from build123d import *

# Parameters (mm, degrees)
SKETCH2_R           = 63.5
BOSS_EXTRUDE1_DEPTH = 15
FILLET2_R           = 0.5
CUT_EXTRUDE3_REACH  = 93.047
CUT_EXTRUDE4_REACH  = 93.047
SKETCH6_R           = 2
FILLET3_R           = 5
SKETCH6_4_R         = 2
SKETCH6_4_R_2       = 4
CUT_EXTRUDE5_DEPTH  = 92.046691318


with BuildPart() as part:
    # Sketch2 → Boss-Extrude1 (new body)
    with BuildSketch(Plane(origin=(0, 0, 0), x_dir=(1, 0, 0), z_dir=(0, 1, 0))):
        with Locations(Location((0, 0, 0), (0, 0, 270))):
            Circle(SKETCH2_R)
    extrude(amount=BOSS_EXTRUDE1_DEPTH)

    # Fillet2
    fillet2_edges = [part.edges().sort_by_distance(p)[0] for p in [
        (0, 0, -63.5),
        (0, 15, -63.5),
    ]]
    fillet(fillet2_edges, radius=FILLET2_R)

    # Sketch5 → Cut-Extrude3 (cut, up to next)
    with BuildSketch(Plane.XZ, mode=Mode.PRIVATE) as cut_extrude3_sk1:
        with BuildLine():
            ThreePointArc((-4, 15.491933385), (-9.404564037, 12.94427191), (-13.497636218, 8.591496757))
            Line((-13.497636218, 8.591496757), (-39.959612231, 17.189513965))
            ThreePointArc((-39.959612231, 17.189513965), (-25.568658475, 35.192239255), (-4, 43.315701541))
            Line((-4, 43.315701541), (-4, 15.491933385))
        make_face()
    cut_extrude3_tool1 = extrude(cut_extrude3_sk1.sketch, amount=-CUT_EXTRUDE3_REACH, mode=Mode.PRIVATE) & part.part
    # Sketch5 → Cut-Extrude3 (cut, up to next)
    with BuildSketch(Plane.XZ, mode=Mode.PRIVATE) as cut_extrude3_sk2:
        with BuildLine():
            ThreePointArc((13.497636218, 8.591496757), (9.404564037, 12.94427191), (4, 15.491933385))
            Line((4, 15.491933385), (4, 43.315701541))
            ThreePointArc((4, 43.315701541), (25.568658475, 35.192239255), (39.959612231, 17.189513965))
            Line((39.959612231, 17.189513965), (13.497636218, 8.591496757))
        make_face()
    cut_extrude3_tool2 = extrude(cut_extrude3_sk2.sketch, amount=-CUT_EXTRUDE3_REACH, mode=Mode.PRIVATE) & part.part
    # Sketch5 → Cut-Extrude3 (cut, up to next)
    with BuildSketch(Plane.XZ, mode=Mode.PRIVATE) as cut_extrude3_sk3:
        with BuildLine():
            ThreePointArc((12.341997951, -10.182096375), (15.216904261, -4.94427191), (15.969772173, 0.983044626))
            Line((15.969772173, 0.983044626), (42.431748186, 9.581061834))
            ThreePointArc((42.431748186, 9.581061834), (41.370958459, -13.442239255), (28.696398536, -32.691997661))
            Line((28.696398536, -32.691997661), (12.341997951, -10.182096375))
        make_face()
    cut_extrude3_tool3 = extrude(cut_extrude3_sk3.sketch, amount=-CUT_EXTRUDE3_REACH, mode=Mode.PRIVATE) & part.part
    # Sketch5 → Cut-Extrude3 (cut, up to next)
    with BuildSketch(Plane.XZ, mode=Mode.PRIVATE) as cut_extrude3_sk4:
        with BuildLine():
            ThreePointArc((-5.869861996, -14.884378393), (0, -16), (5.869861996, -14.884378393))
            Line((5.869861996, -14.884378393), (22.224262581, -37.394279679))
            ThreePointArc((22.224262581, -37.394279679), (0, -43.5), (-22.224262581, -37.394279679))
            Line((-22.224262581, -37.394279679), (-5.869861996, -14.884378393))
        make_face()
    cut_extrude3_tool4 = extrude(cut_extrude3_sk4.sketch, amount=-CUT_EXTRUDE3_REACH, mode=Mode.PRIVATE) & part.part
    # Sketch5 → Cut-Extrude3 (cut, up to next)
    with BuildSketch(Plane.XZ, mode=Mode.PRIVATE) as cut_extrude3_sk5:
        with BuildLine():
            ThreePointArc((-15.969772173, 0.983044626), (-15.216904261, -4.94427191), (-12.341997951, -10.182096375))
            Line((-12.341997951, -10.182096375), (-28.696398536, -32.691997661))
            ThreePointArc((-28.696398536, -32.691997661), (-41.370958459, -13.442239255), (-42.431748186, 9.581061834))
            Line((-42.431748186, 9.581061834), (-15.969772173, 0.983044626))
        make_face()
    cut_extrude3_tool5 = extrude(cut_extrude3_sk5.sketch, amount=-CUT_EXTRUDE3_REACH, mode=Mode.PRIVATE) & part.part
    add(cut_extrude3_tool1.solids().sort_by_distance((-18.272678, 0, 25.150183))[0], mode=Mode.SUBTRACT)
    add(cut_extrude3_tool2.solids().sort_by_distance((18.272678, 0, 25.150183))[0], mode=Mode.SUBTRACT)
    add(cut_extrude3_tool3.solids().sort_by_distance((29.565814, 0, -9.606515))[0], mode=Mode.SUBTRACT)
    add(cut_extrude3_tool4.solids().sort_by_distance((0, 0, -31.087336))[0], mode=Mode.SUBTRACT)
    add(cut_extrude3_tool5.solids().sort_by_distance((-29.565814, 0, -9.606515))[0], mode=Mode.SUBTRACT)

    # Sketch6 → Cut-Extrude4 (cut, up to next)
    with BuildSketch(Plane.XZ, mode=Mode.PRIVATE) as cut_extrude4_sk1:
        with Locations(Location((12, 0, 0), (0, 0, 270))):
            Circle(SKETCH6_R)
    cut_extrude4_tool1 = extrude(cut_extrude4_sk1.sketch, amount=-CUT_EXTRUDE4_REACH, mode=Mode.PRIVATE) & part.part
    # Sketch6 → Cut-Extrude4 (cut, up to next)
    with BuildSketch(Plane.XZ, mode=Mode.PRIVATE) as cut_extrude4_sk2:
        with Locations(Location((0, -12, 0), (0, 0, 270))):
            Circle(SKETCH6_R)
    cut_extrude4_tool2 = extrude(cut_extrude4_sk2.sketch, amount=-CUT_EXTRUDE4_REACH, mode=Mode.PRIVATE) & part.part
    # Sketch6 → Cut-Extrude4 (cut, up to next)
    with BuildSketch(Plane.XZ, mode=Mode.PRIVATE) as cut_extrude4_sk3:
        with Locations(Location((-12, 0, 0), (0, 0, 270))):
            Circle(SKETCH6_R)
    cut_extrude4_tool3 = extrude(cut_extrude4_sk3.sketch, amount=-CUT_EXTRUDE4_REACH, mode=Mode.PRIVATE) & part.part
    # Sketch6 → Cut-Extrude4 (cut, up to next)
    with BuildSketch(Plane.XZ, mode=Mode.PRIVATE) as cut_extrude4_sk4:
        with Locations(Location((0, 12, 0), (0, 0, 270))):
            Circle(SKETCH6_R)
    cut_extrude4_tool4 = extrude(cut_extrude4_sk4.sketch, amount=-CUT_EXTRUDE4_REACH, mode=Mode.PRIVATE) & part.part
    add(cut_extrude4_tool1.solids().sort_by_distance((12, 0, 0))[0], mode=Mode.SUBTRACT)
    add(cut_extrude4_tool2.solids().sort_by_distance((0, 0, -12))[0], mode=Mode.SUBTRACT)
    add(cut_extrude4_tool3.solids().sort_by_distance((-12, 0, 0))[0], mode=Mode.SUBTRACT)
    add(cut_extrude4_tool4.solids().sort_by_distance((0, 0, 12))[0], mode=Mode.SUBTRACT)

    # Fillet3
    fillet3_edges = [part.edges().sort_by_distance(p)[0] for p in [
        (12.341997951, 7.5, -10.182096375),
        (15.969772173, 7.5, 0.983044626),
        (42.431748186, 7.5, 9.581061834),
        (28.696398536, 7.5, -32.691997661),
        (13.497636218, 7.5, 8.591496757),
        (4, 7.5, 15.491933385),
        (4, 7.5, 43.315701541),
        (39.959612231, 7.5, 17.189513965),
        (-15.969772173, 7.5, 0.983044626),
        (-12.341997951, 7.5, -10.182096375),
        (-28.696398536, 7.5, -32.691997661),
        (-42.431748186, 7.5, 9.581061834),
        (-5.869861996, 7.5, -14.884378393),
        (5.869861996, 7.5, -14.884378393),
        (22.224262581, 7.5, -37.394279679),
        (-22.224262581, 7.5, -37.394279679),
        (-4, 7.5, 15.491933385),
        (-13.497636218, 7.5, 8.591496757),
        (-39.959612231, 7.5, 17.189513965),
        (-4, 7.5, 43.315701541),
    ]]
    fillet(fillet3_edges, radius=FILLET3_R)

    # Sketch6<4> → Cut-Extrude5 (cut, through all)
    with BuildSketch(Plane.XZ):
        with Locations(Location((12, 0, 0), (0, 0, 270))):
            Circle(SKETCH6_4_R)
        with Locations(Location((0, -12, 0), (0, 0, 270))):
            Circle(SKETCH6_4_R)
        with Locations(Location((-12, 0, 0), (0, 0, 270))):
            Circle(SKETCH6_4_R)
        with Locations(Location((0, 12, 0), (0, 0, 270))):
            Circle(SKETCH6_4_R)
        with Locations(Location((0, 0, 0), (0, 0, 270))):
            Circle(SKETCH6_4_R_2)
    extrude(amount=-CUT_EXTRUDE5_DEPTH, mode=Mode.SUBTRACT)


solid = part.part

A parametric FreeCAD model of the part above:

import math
import FreeCAD as App
import Part
import Sketcher
from FreeCAD import Vector
Q = App.Units.Quantity


def edges_at(feature, points):
    """Names of the edges that pass closest to the given points."""
    edges = feature.Shape.Edges
    near = lambda p: min(range(len(edges)), key=lambda i: edges[i].distToShape(Part.Vertex(*p))[0])
    return sorted({f"Edge{near(p) + 1}" for p in points})

doc = App.newDocument("Part")
body = doc.addObject("PartDesign::Body", "Body")

# Sketch on XZ plane
sketch1 = body.newObject("Sketcher::SketchObject", "Sketch")
sketch1.AttachmentSupport = (doc.getObject("XZ_Plane"), [""])
sketch1.MapMode = "FlatFace"
sketch1.addGeometry(Part.Circle(Vector(0, 0, 0), Vector(0, 0, 1), 63.5), False)
sketch1.addConstraint(Sketcher.Constraint("Coincident", 0, 3, -1, 1))
sketch1.addConstraint(Sketcher.Constraint("Diameter", 0, 127.0))
pad1 = body.newObject("PartDesign::Pad", "Pad")
pad1.Profile = sketch1
pad1.Length = 15
pad1.Reversed = True
doc.recompute()

fillet = body.newObject("PartDesign::Fillet", "Fillet")
fillet.Base = (pad1, edges_at(pad1, [(0, 0, -63.5), (0, 15, -63.5)]))
fillet.Radius = 0.5

# Sketch on XZ plane
sketch2 = body.newObject("Sketcher::SketchObject", "Sketch001")
sketch2.AttachmentSupport = (doc.getObject("XZ_Plane"), [""])
sketch2.MapMode = "FlatFace"
sketch2.addGeometry(Part.ArcOfCircle(Part.Circle(Vector(0, 0, 0), Vector(0, 0, 1), 16), math.radians(104.477512), math.radians(147.522488)), False)
sketch2.addGeometry(Part.LineSegment(Vector(-4, 15.491933, 0), Vector(-4, 43.315702, 0)), False)
sketch2.addGeometry(Part.ArcOfCircle(Part.Circle(Vector(0, 0, 0), Vector(0, 0, 1), 43.5), math.radians(95.276031), math.radians(156.723969)), False)
sketch2.addGeometry(Part.LineSegment(Vector(-39.959612, 17.189514, 0), Vector(-13.497636, 8.591497, 0)), False)
sketch2.addConstraint(Sketcher.Constraint("Coincident", 0, 1, 1, 1))
sketch2.addConstraint(Sketcher.Constraint("Coincident", 1, 2, 2, 1))
sketch2.addConstraint(Sketcher.Constraint("Coincident", 2, 2, 3, 1))
sketch2.addConstraint(Sketcher.Constraint("Coincident", 3, 2, 0, 2))
sketch2.addConstraint(Sketcher.Constraint("Vertical", 1))
sketch2.addConstraint(Sketcher.Constraint("Coincident", 0, 3, -1, 1))
sketch2.addConstraint(Sketcher.Constraint("Coincident", 2, 3, -1, 1))
sketch2.addConstraint(Sketcher.Constraint("Radius", 0, 16.0))
sketch2.addConstraint(Sketcher.Constraint("Radius", 2, 43.5))
sketch2.addConstraint(Sketcher.Constraint("Angle", 3, Q("-18 deg")))
sketch2.addConstraint(Sketcher.Constraint("DistanceX", 0, 1, -1, 1, 4.0))
sketch2.addConstraint(Sketcher.Constraint("Distance", 3, 27.823768))
pocket1 = body.newObject("PartDesign::Pocket", "Pocket")
pocket1.Profile = sketch2
pocket1.Type = "UpToFirst"

# Sketch on XZ plane
sketch3 = body.newObject("Sketcher::SketchObject", "Sketch002")
sketch3.AttachmentSupport = (doc.getObject("XZ_Plane"), [""])
sketch3.MapMode = "FlatFace"
sketch3.addGeometry(Part.ArcOfCircle(Part.Circle(Vector(0, 0, 0), Vector(0, 0, 1), 16), math.radians(32.477512), math.radians(75.522488)), False)
sketch3.addGeometry(Part.LineSegment(Vector(13.497636, 8.591497, 0), Vector(39.959612, 17.189514, 0)), False)
sketch3.addGeometry(Part.ArcOfCircle(Part.Circle(Vector(0, 0, 0), Vector(0, 0, 1), 43.5), math.radians(23.276031), math.radians(84.723969)), False)
sketch3.addGeometry(Part.LineSegment(Vector(4, 43.315702, 0), Vector(4, 15.491933, 0)), False)
sketch3.addConstraint(Sketcher.Constraint("Coincident", 0, 1, 1, 1))
sketch3.addConstraint(Sketcher.Constraint("Coincident", 1, 2, 2, 1))
sketch3.addConstraint(Sketcher.Constraint("Coincident", 2, 2, 3, 1))
sketch3.addConstraint(Sketcher.Constraint("Coincident", 3, 2, 0, 2))
sketch3.addConstraint(Sketcher.Constraint("Vertical", 3))
sketch3.addConstraint(Sketcher.Constraint("Coincident", 0, 3, -1, 1))
sketch3.addConstraint(Sketcher.Constraint("Coincident", 2, 3, -1, 1))
sketch3.addConstraint(Sketcher.Constraint("Radius", 0, 16.0))
sketch3.addConstraint(Sketcher.Constraint("Radius", 2, 43.5))
sketch3.addConstraint(Sketcher.Constraint("Angle", 1, Q("18 deg")))
sketch3.addConstraint(Sketcher.Constraint("DistanceX", -1, 1, 2, 2, 4.0))
sketch3.addConstraint(Sketcher.Constraint("Distance", 1, 27.823768))
pocket2 = body.newObject("PartDesign::Pocket", "Pocket001")
pocket2.Profile = sketch3
pocket2.Type = "UpToFirst"

# Sketch on XZ plane
sketch4 = body.newObject("Sketcher::SketchObject", "Sketch003")
sketch4.AttachmentSupport = (doc.getObject("XZ_Plane"), [""])
sketch4.MapMode = "FlatFace"
sketch4.addGeometry(Part.ArcOfCircle(Part.Circle(Vector(0, 0, 0), Vector(0, 0, 1), 16), math.radians(-39.522488), math.radians(3.522488)), False)
sketch4.addGeometry(Part.LineSegment(Vector(12.341998, -10.182096, 0), Vector(28.696399, -32.691998, 0)), False)
sketch4.addGeometry(Part.ArcOfCircle(Part.Circle(Vector(0, 0, 0), Vector(0, 0, 1), 43.5), math.radians(-48.723969), math.radians(12.723969)), False)
sketch4.addGeometry(Part.LineSegment(Vector(42.431748, 9.581062, 0), Vector(15.969772, 0.983045, 0)), False)
sketch4.addConstraint(Sketcher.Constraint("Coincident", 0, 1, 1, 1))
sketch4.addConstraint(Sketcher.Constraint("Coincident", 1, 2, 2, 1))
sketch4.addConstraint(Sketcher.Constraint("Coincident", 2, 2, 3, 1))
sketch4.addConstraint(Sketcher.Constraint("Coincident", 3, 2, 0, 2))
sketch4.addConstraint(Sketcher.Constraint("Coincident", 0, 3, -1, 1))
sketch4.addConstraint(Sketcher.Constraint("Coincident", 2, 3, -1, 1))
sketch4.addConstraint(Sketcher.Constraint("Equal", 1, 3))
sketch4.addConstraint(Sketcher.Constraint("Radius", 0, 16.0))
sketch4.addConstraint(Sketcher.Constraint("Radius", 2, 43.5))
sketch4.addConstraint(Sketcher.Constraint("Angle", 1, Q("-54 deg")))
sketch4.addConstraint(Sketcher.Constraint("Angle", 3, Q("-162 deg")))
sketch4.addConstraint(Sketcher.Constraint("DistanceX", -1, 1, 1, 2, 28.696399))
pocket3 = body.newObject("PartDesign::Pocket", "Pocket002")
pocket3.Profile = sketch4
pocket3.Type = "UpToFirst"

# Sketch on XZ plane
sketch5 = body.newObject("Sketcher::SketchObject", "Sketch004")
sketch5.AttachmentSupport = (doc.getObject("XZ_Plane"), [""])
sketch5.MapMode = "FlatFace"
sketch5.addGeometry(Part.ArcOfCircle(Part.Circle(Vector(0, 0, 0), Vector(0, 0, 1), 16), math.radians(-111.522488), math.radians(-68.477512)), False)
sketch5.addGeometry(Part.LineSegment(Vector(-5.869862, -14.884378, 0), Vector(-22.224263, -37.39428, 0)), False)
sketch5.addGeometry(Part.ArcOfCircle(Part.Circle(Vector(0, 0, 0), Vector(0, 0, 1), 43.5), math.radians(-120.723969), math.radians(-59.276031)), False)
sketch5.addGeometry(Part.LineSegment(Vector(22.224263, -37.39428, 0), Vector(5.869862, -14.884378, 0)), False)
sketch5.addConstraint(Sketcher.Constraint("Coincident", 0, 1, 1, 1))
sketch5.addConstraint(Sketcher.Constraint("Coincident", 1, 2, 2, 1))
sketch5.addConstraint(Sketcher.Constraint("Coincident", 2, 2, 3, 1))
sketch5.addConstraint(Sketcher.Constraint("Coincident", 3, 2, 0, 2))
sketch5.addConstraint(Sketcher.Constraint("Coincident", 0, 3, -1, 1))
sketch5.addConstraint(Sketcher.Constraint("Coincident", 2, 3, -1, 1))
sketch5.addConstraint(Sketcher.Constraint("Horizontal", 1, 2, 2, 2))
sketch5.addConstraint(Sketcher.Constraint("Horizontal", 0, 1, 3, 2))
sketch5.addConstraint(Sketcher.Constraint("Radius", 0, 16.0))
sketch5.addConstraint(Sketcher.Constraint("Radius", 2, 43.5))
sketch5.addConstraint(Sketcher.Constraint("Angle", 1, Q("-126 deg")))
sketch5.addConstraint(Sketcher.Constraint("DistanceX", 1, 2, 0, 1, 16.354401))
pocket4 = body.newObject("PartDesign::Pocket", "Pocket003")
pocket4.Profile = sketch5
pocket4.Type = "UpToFirst"

# Sketch on XZ plane
sketch6 = body.newObject("Sketcher::SketchObject", "Sketch005")
sketch6.AttachmentSupport = (doc.getObject("XZ_Plane"), [""])
sketch6.MapMode = "FlatFace"
sketch6.addGeometry(Part.ArcOfCircle(Part.Circle(Vector(0, 0, 0), Vector(0, 0, 1), 16), math.radians(176.477512), math.radians(219.522488)), False)
sketch6.addGeometry(Part.LineSegment(Vector(-15.969772, 0.983045, 0), Vector(-42.431748, 9.581062, 0)), False)
sketch6.addGeometry(Part.ArcOfCircle(Part.Circle(Vector(0, 0, 0), Vector(0, 0, 1), 43.5), math.radians(167.276031), math.radians(228.723969)), False)
sketch6.addGeometry(Part.LineSegment(Vector(-28.696399, -32.691998, 0), Vector(-12.341998, -10.182096, 0)), False)
sketch6.addConstraint(Sketcher.Constraint("Coincident", 0, 1, 1, 1))
sketch6.addConstraint(Sketcher.Constraint("Coincident", 1, 2, 2, 1))
sketch6.addConstraint(Sketcher.Constraint("Coincident", 2, 2, 3, 1))
sketch6.addConstraint(Sketcher.Constraint("Coincident", 3, 2, 0, 2))
sketch6.addConstraint(Sketcher.Constraint("Coincident", 0, 3, -1, 1))
sketch6.addConstraint(Sketcher.Constraint("Coincident", 2, 3, -1, 1))
sketch6.addConstraint(Sketcher.Constraint("Equal", 1, 3))
sketch6.addConstraint(Sketcher.Constraint("Radius", 0, 16.0))
sketch6.addConstraint(Sketcher.Constraint("Radius", 2, 43.5))
sketch6.addConstraint(Sketcher.Constraint("Angle", 1, Q("162 deg")))
sketch6.addConstraint(Sketcher.Constraint("Angle", 3, Q("54 deg")))
sketch6.addConstraint(Sketcher.Constraint("DistanceX", 2, 2, -1, 1, 28.696399))
pocket5 = body.newObject("PartDesign::Pocket", "Pocket004")
pocket5.Profile = sketch6
pocket5.Type = "UpToFirst"

# Sketch on XZ plane
sketch7 = body.newObject("Sketcher::SketchObject", "Sketch006")
sketch7.AttachmentSupport = (doc.getObject("XZ_Plane"), [""])
sketch7.MapMode = "FlatFace"
sketch7.addGeometry(Part.Circle(Vector(12, 0, 0), Vector(0, 0, 1), 2), False)
sketch7.addConstraint(Sketcher.Constraint("PointOnObject", 0, 3, -1))
sketch7.addConstraint(Sketcher.Constraint("Diameter", 0, 4.0))
sketch7.addConstraint(Sketcher.Constraint("DistanceX", -1, 1, 0, 3, 12.0))
pocket6 = body.newObject("PartDesign::Pocket", "Pocket005")
pocket6.Profile = sketch7
pocket6.Type = "UpToFirst"

# Sketch on XZ plane
sketch8 = body.newObject("Sketcher::SketchObject", "Sketch007")
sketch8.AttachmentSupport = (doc.getObject("XZ_Plane"), [""])
sketch8.MapMode = "FlatFace"
sketch8.addGeometry(Part.Circle(Vector(0, -12, 0), Vector(0, 0, 1), 2), False)
sketch8.addConstraint(Sketcher.Constraint("PointOnObject", 0, 3, -2))
sketch8.addConstraint(Sketcher.Constraint("Diameter", 0, 4.0))
sketch8.addConstraint(Sketcher.Constraint("DistanceY", 0, 3, -1, 1, 12.0))
pocket7 = body.newObject("PartDesign::Pocket", "Pocket006")
pocket7.Profile = sketch8
pocket7.Type = "UpToFirst"

# Sketch on XZ plane
sketch9 = body.newObject("Sketcher::SketchObject", "Sketch008")
sketch9.AttachmentSupport = (doc.getObject("XZ_Plane"), [""])
sketch9.MapMode = "FlatFace"
sketch9.addGeometry(Part.Circle(Vector(-12, 0, 0), Vector(0, 0, 1), 2), False)
sketch9.addConstraint(Sketcher.Constraint("PointOnObject", 0, 3, -1))
sketch9.addConstraint(Sketcher.Constraint("Diameter", 0, 4.0))
sketch9.addConstraint(Sketcher.Constraint("DistanceX", 0, 3, -1, 1, 12.0))
pocket8 = body.newObject("PartDesign::Pocket", "Pocket007")
pocket8.Profile = sketch9
pocket8.Type = "UpToFirst"

# Sketch on XZ plane
sketch10 = body.newObject("Sketcher::SketchObject", "Sketch009")
sketch10.AttachmentSupport = (doc.getObject("XZ_Plane"), [""])
sketch10.MapMode = "FlatFace"
sketch10.addGeometry(Part.Circle(Vector(0, 12, 0), Vector(0, 0, 1), 2), False)
sketch10.addConstraint(Sketcher.Constraint("PointOnObject", 0, 3, -2))
sketch10.addConstraint(Sketcher.Constraint("Diameter", 0, 4.0))
sketch10.addConstraint(Sketcher.Constraint("DistanceY", -1, 1, 0, 3, 12.0))
pocket9 = body.newObject("PartDesign::Pocket", "Pocket008")
pocket9.Profile = sketch10
pocket9.Type = "UpToFirst"
doc.recompute()

fillet2 = body.newObject("PartDesign::Fillet", "Fillet001")
fillet2.Base = (pocket9, edges_at(pocket9, [
    (12.342, 7.5, -10.182),
    (15.97, 7.5, 0.983),
    (42.432, 7.5, 9.581),
    (28.696, 7.5, -32.692),
    (13.498, 7.5, 8.591),
    (4, 7.5, 15.492),
    (4, 7.5, 43.316),
    (39.96, 7.5, 17.19),
    (-15.97, 7.5, 0.983),
    (-12.342, 7.5, -10.182),
    (-28.696, 7.5, -32.692),
    (-42.432, 7.5, 9.581),
    (-5.87, 7.5, -14.884),
    (5.87, 7.5, -14.884),
    (22.224, 7.5, -37.394),
    (-22.224, 7.5, -37.394),
    (-4, 7.5, 15.492),
    (-13.498, 7.5, 8.591),
    (-39.96, 7.5, 17.19),
    (-4, 7.5, 43.316),
]))
fillet2.Radius = 5

# Sketch on XZ plane
sketch11 = body.newObject("Sketcher::SketchObject", "Sketch010")
sketch11.AttachmentSupport = (doc.getObject("XZ_Plane"), [""])
sketch11.MapMode = "FlatFace"
sketch11.addGeometry(Part.Circle(Vector(12, 0, 0), Vector(0, 0, 1), 2), False)
sketch11.addGeometry(Part.Circle(Vector(0, -12, 0), Vector(0, 0, 1), 2), False)
sketch11.addGeometry(Part.Circle(Vector(-12, 0, 0), Vector(0, 0, 1), 2), False)
sketch11.addGeometry(Part.Circle(Vector(0, 12, 0), Vector(0, 0, 1), 2), False)
sketch11.addGeometry(Part.Circle(Vector(0, 0, 0), Vector(0, 0, 1), 4), False)
sketch11.addConstraint(Sketcher.Constraint("Coincident", 4, 3, -1, 1))
sketch11.addConstraint(Sketcher.Constraint("Equal", 0, 1))
sketch11.addConstraint(Sketcher.Constraint("Equal", 1, 2))
sketch11.addConstraint(Sketcher.Constraint("Equal", 2, 3))
sketch11.addConstraint(Sketcher.Constraint("Symmetric", 0, 3, 2, 3, -1, 1))
sketch11.addConstraint(Sketcher.Constraint("Symmetric", 1, 3, 3, 3, -1, 1))
sketch11.addConstraint(Sketcher.Constraint("PointOnObject", 0, 3, -1))
sketch11.addConstraint(Sketcher.Constraint("PointOnObject", 1, 3, -2))
sketch11.addConstraint(Sketcher.Constraint("Diameter", 0, 4.0))
sketch11.addConstraint(Sketcher.Constraint("Diameter", 4, 8.0))
sketch11.addConstraint(Sketcher.Constraint("DistanceX", -1, 1, 0, 3, 12.0))
sketch11.addConstraint(Sketcher.Constraint("DistanceY", 1, 3, -1, 1, 12.0))
pocket10 = body.newObject("PartDesign::Pocket", "Pocket009")
pocket10.Profile = sketch11
pocket10.Type = "ThroughAll"

doc.recompute()
